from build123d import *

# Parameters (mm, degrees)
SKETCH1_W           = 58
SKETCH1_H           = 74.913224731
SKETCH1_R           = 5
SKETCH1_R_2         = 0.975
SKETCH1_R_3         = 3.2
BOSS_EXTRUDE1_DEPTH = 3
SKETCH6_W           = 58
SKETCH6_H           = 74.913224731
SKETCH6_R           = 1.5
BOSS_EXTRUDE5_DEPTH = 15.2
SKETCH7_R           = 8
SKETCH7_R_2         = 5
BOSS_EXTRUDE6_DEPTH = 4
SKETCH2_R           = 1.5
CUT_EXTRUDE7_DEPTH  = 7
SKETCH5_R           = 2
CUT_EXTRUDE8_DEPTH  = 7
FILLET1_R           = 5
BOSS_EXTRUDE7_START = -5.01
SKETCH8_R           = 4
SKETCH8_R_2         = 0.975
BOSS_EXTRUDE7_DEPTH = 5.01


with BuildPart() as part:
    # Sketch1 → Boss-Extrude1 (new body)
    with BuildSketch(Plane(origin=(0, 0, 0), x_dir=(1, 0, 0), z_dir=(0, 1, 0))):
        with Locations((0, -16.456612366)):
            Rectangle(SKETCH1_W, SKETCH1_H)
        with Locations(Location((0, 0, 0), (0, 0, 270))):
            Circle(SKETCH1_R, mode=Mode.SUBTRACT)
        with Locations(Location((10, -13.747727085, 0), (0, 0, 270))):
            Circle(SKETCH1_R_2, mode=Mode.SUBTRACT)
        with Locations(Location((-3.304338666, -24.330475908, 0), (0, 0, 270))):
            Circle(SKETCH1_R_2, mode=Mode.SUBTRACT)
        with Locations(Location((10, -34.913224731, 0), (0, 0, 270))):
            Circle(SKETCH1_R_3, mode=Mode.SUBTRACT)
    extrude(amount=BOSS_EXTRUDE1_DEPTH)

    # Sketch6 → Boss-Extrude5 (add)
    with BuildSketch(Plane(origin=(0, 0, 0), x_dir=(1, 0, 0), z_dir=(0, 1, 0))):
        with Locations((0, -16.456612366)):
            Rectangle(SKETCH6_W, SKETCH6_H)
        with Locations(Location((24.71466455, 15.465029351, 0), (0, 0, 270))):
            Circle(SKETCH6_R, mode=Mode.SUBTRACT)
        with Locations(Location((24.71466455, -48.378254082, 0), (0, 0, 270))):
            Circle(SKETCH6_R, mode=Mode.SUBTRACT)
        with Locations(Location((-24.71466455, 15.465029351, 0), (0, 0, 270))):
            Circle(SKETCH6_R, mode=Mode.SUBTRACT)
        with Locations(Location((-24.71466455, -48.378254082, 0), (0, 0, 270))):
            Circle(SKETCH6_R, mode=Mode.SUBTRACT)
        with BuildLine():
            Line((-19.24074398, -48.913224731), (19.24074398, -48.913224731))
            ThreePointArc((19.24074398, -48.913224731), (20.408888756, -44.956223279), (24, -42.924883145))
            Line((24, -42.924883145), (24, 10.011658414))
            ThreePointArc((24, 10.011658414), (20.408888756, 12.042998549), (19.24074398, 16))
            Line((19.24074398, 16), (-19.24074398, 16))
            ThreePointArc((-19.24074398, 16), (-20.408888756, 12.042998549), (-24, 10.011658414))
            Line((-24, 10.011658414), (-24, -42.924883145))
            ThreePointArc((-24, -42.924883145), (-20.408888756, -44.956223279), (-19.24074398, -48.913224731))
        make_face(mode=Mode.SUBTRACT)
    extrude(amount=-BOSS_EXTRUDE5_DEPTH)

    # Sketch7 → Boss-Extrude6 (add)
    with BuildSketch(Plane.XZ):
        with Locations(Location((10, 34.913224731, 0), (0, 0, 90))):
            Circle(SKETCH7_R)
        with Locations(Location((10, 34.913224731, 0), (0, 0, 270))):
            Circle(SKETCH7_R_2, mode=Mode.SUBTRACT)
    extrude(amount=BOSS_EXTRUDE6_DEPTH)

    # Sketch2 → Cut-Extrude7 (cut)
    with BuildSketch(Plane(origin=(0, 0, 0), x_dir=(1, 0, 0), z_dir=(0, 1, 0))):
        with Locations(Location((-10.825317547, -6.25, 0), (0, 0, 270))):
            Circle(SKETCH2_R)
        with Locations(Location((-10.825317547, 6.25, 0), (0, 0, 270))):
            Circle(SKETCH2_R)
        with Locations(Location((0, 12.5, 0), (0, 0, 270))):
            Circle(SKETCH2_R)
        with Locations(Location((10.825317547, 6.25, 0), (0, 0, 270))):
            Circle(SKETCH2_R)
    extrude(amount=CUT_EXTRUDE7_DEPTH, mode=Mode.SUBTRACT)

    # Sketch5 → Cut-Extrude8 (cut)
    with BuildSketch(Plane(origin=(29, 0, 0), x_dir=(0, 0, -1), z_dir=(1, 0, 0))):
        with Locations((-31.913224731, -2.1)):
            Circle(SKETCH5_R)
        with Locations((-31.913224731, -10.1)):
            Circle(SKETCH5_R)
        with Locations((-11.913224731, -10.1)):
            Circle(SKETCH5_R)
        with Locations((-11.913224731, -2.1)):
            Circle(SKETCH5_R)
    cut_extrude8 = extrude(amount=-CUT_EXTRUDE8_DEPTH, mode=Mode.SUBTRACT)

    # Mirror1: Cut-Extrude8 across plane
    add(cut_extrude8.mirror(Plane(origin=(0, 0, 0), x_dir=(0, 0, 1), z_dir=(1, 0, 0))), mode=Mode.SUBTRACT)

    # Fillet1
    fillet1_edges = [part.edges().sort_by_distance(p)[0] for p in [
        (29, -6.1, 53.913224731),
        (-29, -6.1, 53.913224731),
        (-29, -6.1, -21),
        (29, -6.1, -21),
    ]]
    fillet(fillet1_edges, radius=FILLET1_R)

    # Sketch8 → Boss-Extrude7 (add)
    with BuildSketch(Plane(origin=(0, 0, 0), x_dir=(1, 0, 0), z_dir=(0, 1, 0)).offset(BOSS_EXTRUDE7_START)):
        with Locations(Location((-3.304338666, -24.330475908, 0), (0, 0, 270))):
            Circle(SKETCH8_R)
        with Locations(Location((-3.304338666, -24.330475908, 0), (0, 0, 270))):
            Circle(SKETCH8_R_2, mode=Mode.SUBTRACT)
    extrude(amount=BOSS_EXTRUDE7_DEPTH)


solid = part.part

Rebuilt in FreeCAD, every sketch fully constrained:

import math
import FreeCAD as App
import Part
import Sketcher
from FreeCAD import Vector


def edges_at(feature, points):
    """Names of the edges that pass closest to the given points."""
    edges = feature.Shape.Edges
    near = lambda p: min(range(len(edges)), key=lambda i: edges[i].distToShape(Part.Vertex(*p))[0])
    return sorted({f"Edge{near(p) + 1}" for p in points})

doc = App.newDocument("Part")
body = doc.addObject("PartDesign::Body", "Body")

sketch1 = body.newObject("Sketcher::SketchObject", "Sketch")
sketch1.AttachmentSupport = (doc.getObject("XZ_Plane"), [""])
sketch1.MapMode = "FlatFace"
sketch1.addGeometry(Part.LineSegment(Vector(-29, -21, 0), Vector(-29, 53.9, 0)), False)
sketch1.addGeometry(Part.LineSegment(Vector(-29, 53.9, 0), Vector(29, 53.9, 0)), False)
sketch1.addGeometry(Part.LineSegment(Vector(29, 53.9, 0), Vector(29, -21, 0)), False)
sketch1.addGeometry(Part.LineSegment(Vector(29, -21, 0), Vector(-29, -21, 0)), False)
sketch1.addGeometry(Part.Circle(Vector(-3.3, 24.3, 0), Vector(0, 0, 1), 1), False)
sketch1.addGeometry(Part.Circle(Vector(10, 34.9, 0), Vector(0, 0, 1), 3.2), False)
sketch1.addGeometry(Part.Circle(Vector(0, 0, 0), Vector(0, 0, 1), 5), False)
sketch1.addGeometry(Part.Circle(Vector(10, 13.7, 0), Vector(0, 0, 1), 1), False)
sketch1.addConstraint(Sketcher.Constraint("Coincident", 0, 2, 1, 1))
sketch1.addConstraint(Sketcher.Constraint("Coincident", 1, 2, 2, 1))
sketch1.addConstraint(Sketcher.Constraint("Coincident", 2, 2, 3, 1))
sketch1.addConstraint(Sketcher.Constraint("Coincident", 3, 2, 0, 1))
sketch1.addConstraint(Sketcher.Constraint("Vertical", 0))
sketch1.addConstraint(Sketcher.Constraint("Horizontal", 1))
sketch1.addConstraint(Sketcher.Constraint("Vertical", 2))
sketch1.addConstraint(Sketcher.Constraint("Horizontal", 3))
sketch1.addConstraint(Sketcher.Constraint("Coincident", 6, 3, -1, 1))
sketch1.addConstraint(Sketcher.Constraint("Equal", 4, 7))
sketch1.addConstraint(Sketcher.Constraint("Vertical", 5, 3, 7, 3))
sketch1.addConstraint(Sketcher.Constraint("Diameter", 6, 10.0))
sketch1.addConstraint(Sketcher.Constraint("Diameter", 5, 6.4))
sketch1.addConstraint(Sketcher.Constraint("Diameter", 4, 1.95))
sketch1.addConstraint(Sketcher.Constraint("DistanceX", 1, 1, 1, 2, 58.0))
sketch1.addConstraint(Sketcher.Constraint("DistanceX", -1, 1, 5, 3, 10.0))
sketch1.addConstraint(Sketcher.Constraint("DistanceX", 0, 2, -1, 1, 29.0))
sketch1.addConstraint(Sketcher.Constraint("DistanceY", 2, 2, -1, 1, 21.0))
sketch1.addConstraint(Sketcher.Constraint("DistanceY", 5, 3, 0, 2, 19.0))
sketch1.addConstraint(Sketcher.Constraint("DistanceY", 0, 1, 0, 2, 74.913225))
sketch1.addConstraint(Sketcher.Constraint("DistanceX", 4, 3, -1, 1, 3.304339))
sketch1.addConstraint(Sketcher.Constraint("DistanceY", 4, 3, 5, 3, 10.582749))
sketch1.addConstraint(Sketcher.Constraint("DistanceY", 7, 3, 4, 3, 10.582749))
pad1 = body.newObject("PartDesign::Pad", "Pad")
pad1.Profile = sketch1
pad1.Length = 3
pad1.Reversed = True

sketch2 = body.newObject("Sketcher::SketchObject", "Sketch001")
sketch2.AttachmentSupport = (doc.getObject("XZ_Plane"), [""])
sketch2.MapMode = "FlatFace"
sketch2.addGeometry(Part.LineSegment(Vector(-29, -21, 0), Vector(-29, 53.9, 0)), False)
sketch2.addGeometry(Part.LineSegment(Vector(-29, 53.9, 0), Vector(29, 53.9, 0)), False)
sketch2.addGeometry(Part.LineSegment(Vector(29, 53.9, 0), Vector(29, -21, 0)), False)
sketch2.addGeometry(Part.LineSegment(Vector(29, -21, 0), Vector(-29, -21, 0)), False)
sketch2.addGeometry(Part.Circle(Vector(-24.7, 48.4, 0), Vector(0, 0, 1), 1.5), False)
sketch2.addGeometry(Part.Circle(Vector(24.7, 48.4, 0), Vector(0, 0, 1), 1.5), False)
sketch2.addGeometry(Part.LineSegment(Vector(19.2, 48.9, 0), Vector(-19.2, 48.9, 0)), False)
sketch2.addGeometry(Part.ArcOfCircle(Part.Circle(Vector(-24.7, 48.4, 0), Vector(0, 0, 1), 5.5), math.radians(-83), math.radians(6)), False)
sketch2.addGeometry(Part.LineSegment(Vector(-24, 42.9, 0), Vector(-24, -10, 0)), False)
sketch2.addGeometry(Part.ArcOfCircle(Part.Circle(Vector(-24.7, -15.5, 0), Vector(0, 0, 1), 5.5), math.radians(-6), math.radians(83)), False)
sketch2.addGeometry(Part.LineSegment(Vector(-19.2, -16, 0), Vector(19.2, -16, 0)), False)
sketch2.addGeometry(Part.ArcOfCircle(Part.Circle(Vector(24.7, -15.5, 0), Vector(0, 0, 1), 5.5), math.radians(97), math.radians(186)), False)
sketch2.addGeometry(Part.LineSegment(Vector(24, -10, 0), Vector(24, 42.9, 0)), False)
sketch2.addGeometry(Part.ArcOfCircle(Part.Circle(Vector(24.7, 48.4, 0), Vector(0, 0, 1), 5.5), math.radians(174), math.radians(263)), False)
sketch2.addGeometry(Part.Circle(Vector(-24.7, -15.5, 0), Vector(0, 0, 1), 1.5), False)
sketch2.addGeometry(Part.Circle(Vector(24.7, -15.5, 0), Vector(0, 0, 1), 1.5), False)
sketch2.addConstraint(Sketcher.Constraint("Coincident", 0, 2, 1, 1))
sketch2.addConstraint(Sketcher.Constraint("Coincident", 1, 2, 2, 1))
sketch2.addConstraint(Sketcher.Constraint("Coincident", 2, 2, 3, 1))
sketch2.addConstraint(Sketcher.Constraint("Coincident", 3, 2, 0, 1))
sketch2.addConstraint(Sketcher.Constraint("Coincident", 6, 2, 7, 2))
sketch2.addConstraint(Sketcher.Constraint("Coincident", 7, 1, 8, 1))
sketch2.addConstraint(Sketcher.Constraint("Coincident", 8, 2, 9, 2))
sketch2.addConstraint(Sketcher.Constraint("Coincident", 9, 1, 10, 1))
sketch2.addConstraint(Sketcher.Constraint("Coincident", 10, 2, 11, 2))
sketch2.addConstraint(Sketcher.Constraint("Coincident", 11, 1, 12, 1))
sketch2.addConstraint(Sketcher.Constraint("Coincident", 12, 2, 13, 2))
sketch2.addConstraint(Sketcher.Constraint("Coincident", 13, 1, 6, 1))
sketch2.addConstraint(Sketcher.Constraint("Vertical", 0))
sketch2.addConstraint(Sketcher.Constraint("Horizontal", 1))
sketch2.addConstraint(Sketcher.Constraint("Vertical", 2))
sketch2.addConstraint(Sketcher.Constraint("Horizontal", 3))
sketch2.addConstraint(Sketcher.Constraint("Horizontal", 6))
sketch2.addConstraint(Sketcher.Constraint("Vertical", 8))
sketch2.addConstraint(Sketcher.Constraint("Horizontal", 10))
sketch2.addConstraint(Sketcher.Constraint("Vertical", 12))
sketch2.addConstraint(Sketcher.Constraint("Coincident", 7, 3, 4, 3))
sketch2.addConstraint(Sketcher.Constraint("Coincident", 13, 3, 5, 3))
sketch2.addConstraint(Sketcher.Constraint("Coincident", 14, 3, 9, 3))
sketch2.addConstraint(Sketcher.Constraint("Coincident", 15, 3, 11, 3))
sketch2.addConstraint(Sketcher.Constraint("Equal", 4, 5))
sketch2.addConstraint(Sketcher.Constraint("Equal", 7, 9))
sketch2.addConstraint(Sketcher.Constraint("Equal", 9, 11))
sketch2.addConstraint(Sketcher.Constraint("Equal", 11, 13))
sketch2.addConstraint(Sketcher.Constraint("Equal", 5, 14))
sketch2.addConstraint(Sketcher.Constraint("Equal", 14, 15))
sketch2.addConstraint(Sketcher.Constraint("Symmetric", 4, 3, 5, 3, -2))
sketch2.addConstraint(Sketcher.Constraint("Symmetric", 9, 3, 11, 3, -2))
sketch2.addConstraint(Sketcher.Constraint("Horizontal", 8, 2, 11, 1))
sketch2.addConstraint(Sketcher.Constraint("Vertical", 7, 3, 9, 3))
sketch2.addConstraint(Sketcher.Constraint("Vertical", 6, 2, 9, 1))
sketch2.addConstraint(Sketcher.Constraint("Diameter", 4, 3.0))
sketch2.addConstraint(Sketcher.Constraint("Radius", 7, 5.5))
sketch2.addConstraint(Sketcher.Constraint("DistanceX", 1, 1, 1, 2, 58.0))
sketch2.addConstraint(Sketcher.Constraint("DistanceX", 0, 2, -1, 1, 29.0))
sketch2.addConstraint(Sketcher.Constraint("DistanceY", 2, 2, -1, 1, 21.0))
sketch2.addConstraint(Sketcher.Constraint("DistanceX", 7, 1, -1, 1, 24.0))
sketch2.addConstraint(Sketcher.Constraint("DistanceY", 9, 1, -1, 1, 16.0))
sketch2.addConstraint(Sketcher.Constraint("DistanceY", 6, 2, 0, 2, 5.0))
sketch2.addConstraint(Sketcher.Constraint("DistanceY", 8, 2, 8, 1, 52.936542))
sketch2.addConstraint(Sketcher.Constraint("DistanceX", 6, 2, 6, 1, 38.481488))
sketch2.addConstraint(Sketcher.Constraint("DistanceY", 0, 1, 0, 2, 74.913225))
pad2 = body.newObject("PartDesign::Pad", "Pad001")
pad2.Profile = sketch2
pad2.Length = 15.2

sketch3 = body.newObject("Sketcher::SketchObject", "Sketch002")
sketch3.AttachmentSupport = (doc.getObject("XZ_Plane"), [""])
sketch3.MapMode = "FlatFace"
sketch3.addGeometry(Part.Circle(Vector(10, 35, 0), Vector(0, 0, 1), 8), False)
sketch3.addGeometry(Part.Circle(Vector(10, 35, 0), Vector(0, 0, 1), 5), False)
sketch3.addConstraint(Sketcher.Constraint("Coincident", 1, 3, 0, 3))
sketch3.addConstraint(Sketcher.Constraint("Diameter", 0, 16.0))
sketch3.addConstraint(Sketcher.Constraint("Diameter", 1, 10.0))
sketch3.addConstraint(Sketcher.Constraint("DistanceX", -1, 1, 0, 3, 10.0))
sketch3.addConstraint(Sketcher.Constraint("DistanceY", -1, 1, 0, 3, 34.913225))
pad3 = body.newObject("PartDesign::Pad", "Pad002")
pad3.Profile = sketch3
pad3.Length = 4

sketch4 = body.newObject("Sketcher::SketchObject", "Sketch003")
sketch4.AttachmentSupport = (doc.getObject("XZ_Plane"), [""])
sketch4.MapMode = "FlatFace"
sketch4.addGeometry(Part.Circle(Vector(-10.8, 6.2, 0), Vector(0, 0, 1), 1.5), False)
sketch4.addGeometry(Part.Circle(Vector(-10.8, -6.2, 0), Vector(0, 0, 1), 1.5), False)
sketch4.addGeometry(Part.Circle(Vector(0, -12.5, 0), Vector(0, 0, 1), 1.5), False)
sketch4.addGeometry(Part.Circle(Vector(10.8, -6.2, 0), Vector(0, 0, 1), 1.5), False)
sketch4.addConstraint(Sketcher.Constraint("Equal", 0, 1))
sketch4.addConstraint(Sketcher.Constraint("Equal", 1, 2))
sketch4.addConstraint(Sketcher.Constraint("Equal", 2, 3))
sketch4.addConstraint(Sketcher.Constraint("Symmetric", 0, 3, 3, 3, -1, 1))
sketch4.addConstraint(Sketcher.Constraint("Symmetric", 1, 3, 3, 3, -2))
sketch4.addConstraint(Sketcher.Constraint("PointOnObject", 2, 3, -2))
sketch4.addConstraint(Sketcher.Constraint("Diameter", 0, 3.0))
sketch4.addConstraint(Sketcher.Constraint("DistanceY", 2, 3, -1, 1, 12.5))
sketch4.addConstraint(Sketcher.Constraint("DistanceY", 1, 3, 0, 3, 12.5))
sketch4.addConstraint(Sketcher.Constraint("DistanceX", 0, 3, -1, 1, 10.825318))
pocket1 = body.newObject("PartDesign::Pocket", "Pocket")
pocket1.Profile = sketch4
pocket1.Length = 7

sketch5 = body.newObject("Sketcher::SketchObject", "Sketch004")
sketch5.AttachmentSupport = (doc.getObject("YZ_Plane"), [""])
sketch5.MapMode = "FlatFace"
sketch5.AttachmentOffset = App.Placement(Vector(0, 0, 29), App.Rotation())
sketch5.addGeometry(Part.Circle(Vector(-2.1, 31.9, 0), Vector(0, 0, 1), 2), False)
sketch5.addGeometry(Part.Circle(Vector(-10.1, 31.9, 0), Vector(0, 0, 1), 2), False)
sketch5.addGeometry(Part.Circle(Vector(-10.1, 11.9, 0), Vector(0, 0, 1), 2), False)
sketch5.addGeometry(Part.Circle(Vector(-2.1, 11.9, 0), Vector(0, 0, 1), 2), False)
sketch5.addConstraint(Sketcher.Constraint("Equal", 0, 1))
sketch5.addConstraint(Sketcher.Constraint("Equal", 1, 2))
sketch5.addConstraint(Sketcher.Constraint("Equal", 2, 3))
sketch5.addConstraint(Sketcher.Constraint("Horizontal", 0, 3, 1, 3))
sketch5.addConstraint(Sketcher.Constraint("Horizontal", 2, 3, 3, 3))
sketch5.addConstraint(Sketcher.Constraint("Vertical", 1, 3, 2, 3))
sketch5.addConstraint(Sketcher.Constraint("Vertical", 0, 3, 3, 3))
sketch5.addConstraint(Sketcher.Constraint("Diameter", 0, 4.0))
sketch5.addConstraint(Sketcher.Constraint("DistanceX", 1, 3, 0, 3, 8.0))
sketch5.addConstraint(Sketcher.Constraint("DistanceY", 2, 3, 1, 3, 20.0))
sketch5.addConstraint(Sketcher.Constraint("DistanceX", 0, 3, -1, 1, 2.1))
sketch5.addConstraint(Sketcher.Constraint("DistanceY", -1, 1, 0, 3, 31.913225))
pocket2 = body.newObject("PartDesign::Pocket", "Pocket001")
pocket2.Profile = sketch5
pocket2.Length = 7
doc.recompute()

mirrored = body.newObject("PartDesign::Mirrored", "Mirrored")
mirrored.Originals = [pocket2]
mirrored.MirrorPlane = (doc.getObject("YZ_Plane"), [""])
body.Tip = mirrored
doc.recompute()

fillet = body.newObject("PartDesign::Fillet", "Fillet")
fillet.Base = (mirrored, edges_at(mirrored, [
    (29, -6.1, 53.913),
    (-29, -6.1, 53.913),
    (-29, -6.1, -21),
    (29, -6.1, -21),
]))
fillet.Radius = 5

sketch6 = body.newObject("Sketcher::SketchObject", "Sketch005")
sketch6.AttachmentSupport = (doc.getObject("XZ_Plane"), [""])
sketch6.MapMode = "FlatFace"
sketch6.AttachmentOffset = App.Placement(Vector(0, 0, 5.01), App.Rotation())
sketch6.addGeometry(Part.Circle(Vector(-3.3, 24.3, 0), Vector(0, 0, 1), 4), False)
sketch6.addGeometry(Part.Circle(Vector(-3.3, 24.3, 0), Vector(0, 0, 1), 1), False)
sketch6.addConstraint(Sketcher.Constraint("Coincident", 1, 3, 0, 3))
sketch6.addConstraint(Sketcher.Constraint("Diameter", 0, 8.0))
sketch6.addConstraint(Sketcher.Constraint("Diameter", 1, 1.95))
sketch6.addConstraint(Sketcher.Constraint("DistanceX", 0, 3, -1, 1, 3.304339))
sketch6.addConstraint(Sketcher.Constraint("DistanceY", -1, 1, 0, 3, 24.330476))
pad4 = body.newObject("PartDesign::Pad", "Pad003")
pad4.Profile = sketch6
pad4.Length = 5.01
pad4.Reversed = True

doc.recompute()
